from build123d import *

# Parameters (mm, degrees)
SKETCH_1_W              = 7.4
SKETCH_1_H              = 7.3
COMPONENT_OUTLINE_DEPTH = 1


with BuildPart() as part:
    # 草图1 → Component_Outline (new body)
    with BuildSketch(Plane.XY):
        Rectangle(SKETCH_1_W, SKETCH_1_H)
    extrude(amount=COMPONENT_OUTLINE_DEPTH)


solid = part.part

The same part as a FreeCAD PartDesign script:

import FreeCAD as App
import Part
import Sketcher

doc = App.newDocument("Part")
body = doc.addObject("PartDesign::Body", "Body")

sketch1 = doc.addObject("Sketcher::SketchObject", "Sketch")
body.addObject(sketch1)
sketch1.AttachmentSupport = (doc.XY_Plane, [""])
sketch1.MapMode = "FlatFace"
sketch1.addGeometry(Part.LineSegment(App.Vector(-4, 4, 0), App.Vector(-4, -4, 0)), False)
sketch1.addGeometry(Part.LineSegment(App.Vector(-4, -4, 0), App.Vector(4, -4, 0)), False)
sketch1.addGeometry(Part.LineSegment(App.Vector(4, -4, 0), App.Vector(4, 4, 0)), False)
sketch1.addGeometry(Part.LineSegment(App.Vector(4, 4, 0), App.Vector(-4, 4, 0)), False)
sketch1.addConstraint(Sketcher.Constraint("Coincident", 0, 2, 1, 1))
sketch1.addConstraint(Sketcher.Constraint("Coincident", 1, 2, 2, 1))
sketch1.addConstraint(Sketcher.Constraint("Coincident", 2, 2, 3, 1))
sketch1.addConstraint(Sketcher.Constraint("Coincident", 3, 2, 0, 1))
sketch1.addConstraint(Sketcher.Constraint("Vertical", 0))
sketch1.addConstraint(Sketcher.Constraint("Horizontal", 1))
sketch1.addConstraint(Sketcher.Constraint("Vertical", 2))
sketch1.addConstraint(Sketcher.Constraint("Horizontal", 3))
sketch1.addConstraint(Sketcher.Constraint("Symmetric", 0, 2, 2, 2, -1, 1))
sketch1.addConstraint(Sketcher.Constraint("DistanceX", 1, 1, 1, 2, 7.4))
sketch1.addConstraint(Sketcher.Constraint("DistanceY", 0, 2, 0, 1, 7.3))
pad1 = doc.addObject("PartDesign::Pad", "Pad")
body.addObject(pad1)
pad1.Profile = sketch1
pad1.Length = 1

doc.recompute()
